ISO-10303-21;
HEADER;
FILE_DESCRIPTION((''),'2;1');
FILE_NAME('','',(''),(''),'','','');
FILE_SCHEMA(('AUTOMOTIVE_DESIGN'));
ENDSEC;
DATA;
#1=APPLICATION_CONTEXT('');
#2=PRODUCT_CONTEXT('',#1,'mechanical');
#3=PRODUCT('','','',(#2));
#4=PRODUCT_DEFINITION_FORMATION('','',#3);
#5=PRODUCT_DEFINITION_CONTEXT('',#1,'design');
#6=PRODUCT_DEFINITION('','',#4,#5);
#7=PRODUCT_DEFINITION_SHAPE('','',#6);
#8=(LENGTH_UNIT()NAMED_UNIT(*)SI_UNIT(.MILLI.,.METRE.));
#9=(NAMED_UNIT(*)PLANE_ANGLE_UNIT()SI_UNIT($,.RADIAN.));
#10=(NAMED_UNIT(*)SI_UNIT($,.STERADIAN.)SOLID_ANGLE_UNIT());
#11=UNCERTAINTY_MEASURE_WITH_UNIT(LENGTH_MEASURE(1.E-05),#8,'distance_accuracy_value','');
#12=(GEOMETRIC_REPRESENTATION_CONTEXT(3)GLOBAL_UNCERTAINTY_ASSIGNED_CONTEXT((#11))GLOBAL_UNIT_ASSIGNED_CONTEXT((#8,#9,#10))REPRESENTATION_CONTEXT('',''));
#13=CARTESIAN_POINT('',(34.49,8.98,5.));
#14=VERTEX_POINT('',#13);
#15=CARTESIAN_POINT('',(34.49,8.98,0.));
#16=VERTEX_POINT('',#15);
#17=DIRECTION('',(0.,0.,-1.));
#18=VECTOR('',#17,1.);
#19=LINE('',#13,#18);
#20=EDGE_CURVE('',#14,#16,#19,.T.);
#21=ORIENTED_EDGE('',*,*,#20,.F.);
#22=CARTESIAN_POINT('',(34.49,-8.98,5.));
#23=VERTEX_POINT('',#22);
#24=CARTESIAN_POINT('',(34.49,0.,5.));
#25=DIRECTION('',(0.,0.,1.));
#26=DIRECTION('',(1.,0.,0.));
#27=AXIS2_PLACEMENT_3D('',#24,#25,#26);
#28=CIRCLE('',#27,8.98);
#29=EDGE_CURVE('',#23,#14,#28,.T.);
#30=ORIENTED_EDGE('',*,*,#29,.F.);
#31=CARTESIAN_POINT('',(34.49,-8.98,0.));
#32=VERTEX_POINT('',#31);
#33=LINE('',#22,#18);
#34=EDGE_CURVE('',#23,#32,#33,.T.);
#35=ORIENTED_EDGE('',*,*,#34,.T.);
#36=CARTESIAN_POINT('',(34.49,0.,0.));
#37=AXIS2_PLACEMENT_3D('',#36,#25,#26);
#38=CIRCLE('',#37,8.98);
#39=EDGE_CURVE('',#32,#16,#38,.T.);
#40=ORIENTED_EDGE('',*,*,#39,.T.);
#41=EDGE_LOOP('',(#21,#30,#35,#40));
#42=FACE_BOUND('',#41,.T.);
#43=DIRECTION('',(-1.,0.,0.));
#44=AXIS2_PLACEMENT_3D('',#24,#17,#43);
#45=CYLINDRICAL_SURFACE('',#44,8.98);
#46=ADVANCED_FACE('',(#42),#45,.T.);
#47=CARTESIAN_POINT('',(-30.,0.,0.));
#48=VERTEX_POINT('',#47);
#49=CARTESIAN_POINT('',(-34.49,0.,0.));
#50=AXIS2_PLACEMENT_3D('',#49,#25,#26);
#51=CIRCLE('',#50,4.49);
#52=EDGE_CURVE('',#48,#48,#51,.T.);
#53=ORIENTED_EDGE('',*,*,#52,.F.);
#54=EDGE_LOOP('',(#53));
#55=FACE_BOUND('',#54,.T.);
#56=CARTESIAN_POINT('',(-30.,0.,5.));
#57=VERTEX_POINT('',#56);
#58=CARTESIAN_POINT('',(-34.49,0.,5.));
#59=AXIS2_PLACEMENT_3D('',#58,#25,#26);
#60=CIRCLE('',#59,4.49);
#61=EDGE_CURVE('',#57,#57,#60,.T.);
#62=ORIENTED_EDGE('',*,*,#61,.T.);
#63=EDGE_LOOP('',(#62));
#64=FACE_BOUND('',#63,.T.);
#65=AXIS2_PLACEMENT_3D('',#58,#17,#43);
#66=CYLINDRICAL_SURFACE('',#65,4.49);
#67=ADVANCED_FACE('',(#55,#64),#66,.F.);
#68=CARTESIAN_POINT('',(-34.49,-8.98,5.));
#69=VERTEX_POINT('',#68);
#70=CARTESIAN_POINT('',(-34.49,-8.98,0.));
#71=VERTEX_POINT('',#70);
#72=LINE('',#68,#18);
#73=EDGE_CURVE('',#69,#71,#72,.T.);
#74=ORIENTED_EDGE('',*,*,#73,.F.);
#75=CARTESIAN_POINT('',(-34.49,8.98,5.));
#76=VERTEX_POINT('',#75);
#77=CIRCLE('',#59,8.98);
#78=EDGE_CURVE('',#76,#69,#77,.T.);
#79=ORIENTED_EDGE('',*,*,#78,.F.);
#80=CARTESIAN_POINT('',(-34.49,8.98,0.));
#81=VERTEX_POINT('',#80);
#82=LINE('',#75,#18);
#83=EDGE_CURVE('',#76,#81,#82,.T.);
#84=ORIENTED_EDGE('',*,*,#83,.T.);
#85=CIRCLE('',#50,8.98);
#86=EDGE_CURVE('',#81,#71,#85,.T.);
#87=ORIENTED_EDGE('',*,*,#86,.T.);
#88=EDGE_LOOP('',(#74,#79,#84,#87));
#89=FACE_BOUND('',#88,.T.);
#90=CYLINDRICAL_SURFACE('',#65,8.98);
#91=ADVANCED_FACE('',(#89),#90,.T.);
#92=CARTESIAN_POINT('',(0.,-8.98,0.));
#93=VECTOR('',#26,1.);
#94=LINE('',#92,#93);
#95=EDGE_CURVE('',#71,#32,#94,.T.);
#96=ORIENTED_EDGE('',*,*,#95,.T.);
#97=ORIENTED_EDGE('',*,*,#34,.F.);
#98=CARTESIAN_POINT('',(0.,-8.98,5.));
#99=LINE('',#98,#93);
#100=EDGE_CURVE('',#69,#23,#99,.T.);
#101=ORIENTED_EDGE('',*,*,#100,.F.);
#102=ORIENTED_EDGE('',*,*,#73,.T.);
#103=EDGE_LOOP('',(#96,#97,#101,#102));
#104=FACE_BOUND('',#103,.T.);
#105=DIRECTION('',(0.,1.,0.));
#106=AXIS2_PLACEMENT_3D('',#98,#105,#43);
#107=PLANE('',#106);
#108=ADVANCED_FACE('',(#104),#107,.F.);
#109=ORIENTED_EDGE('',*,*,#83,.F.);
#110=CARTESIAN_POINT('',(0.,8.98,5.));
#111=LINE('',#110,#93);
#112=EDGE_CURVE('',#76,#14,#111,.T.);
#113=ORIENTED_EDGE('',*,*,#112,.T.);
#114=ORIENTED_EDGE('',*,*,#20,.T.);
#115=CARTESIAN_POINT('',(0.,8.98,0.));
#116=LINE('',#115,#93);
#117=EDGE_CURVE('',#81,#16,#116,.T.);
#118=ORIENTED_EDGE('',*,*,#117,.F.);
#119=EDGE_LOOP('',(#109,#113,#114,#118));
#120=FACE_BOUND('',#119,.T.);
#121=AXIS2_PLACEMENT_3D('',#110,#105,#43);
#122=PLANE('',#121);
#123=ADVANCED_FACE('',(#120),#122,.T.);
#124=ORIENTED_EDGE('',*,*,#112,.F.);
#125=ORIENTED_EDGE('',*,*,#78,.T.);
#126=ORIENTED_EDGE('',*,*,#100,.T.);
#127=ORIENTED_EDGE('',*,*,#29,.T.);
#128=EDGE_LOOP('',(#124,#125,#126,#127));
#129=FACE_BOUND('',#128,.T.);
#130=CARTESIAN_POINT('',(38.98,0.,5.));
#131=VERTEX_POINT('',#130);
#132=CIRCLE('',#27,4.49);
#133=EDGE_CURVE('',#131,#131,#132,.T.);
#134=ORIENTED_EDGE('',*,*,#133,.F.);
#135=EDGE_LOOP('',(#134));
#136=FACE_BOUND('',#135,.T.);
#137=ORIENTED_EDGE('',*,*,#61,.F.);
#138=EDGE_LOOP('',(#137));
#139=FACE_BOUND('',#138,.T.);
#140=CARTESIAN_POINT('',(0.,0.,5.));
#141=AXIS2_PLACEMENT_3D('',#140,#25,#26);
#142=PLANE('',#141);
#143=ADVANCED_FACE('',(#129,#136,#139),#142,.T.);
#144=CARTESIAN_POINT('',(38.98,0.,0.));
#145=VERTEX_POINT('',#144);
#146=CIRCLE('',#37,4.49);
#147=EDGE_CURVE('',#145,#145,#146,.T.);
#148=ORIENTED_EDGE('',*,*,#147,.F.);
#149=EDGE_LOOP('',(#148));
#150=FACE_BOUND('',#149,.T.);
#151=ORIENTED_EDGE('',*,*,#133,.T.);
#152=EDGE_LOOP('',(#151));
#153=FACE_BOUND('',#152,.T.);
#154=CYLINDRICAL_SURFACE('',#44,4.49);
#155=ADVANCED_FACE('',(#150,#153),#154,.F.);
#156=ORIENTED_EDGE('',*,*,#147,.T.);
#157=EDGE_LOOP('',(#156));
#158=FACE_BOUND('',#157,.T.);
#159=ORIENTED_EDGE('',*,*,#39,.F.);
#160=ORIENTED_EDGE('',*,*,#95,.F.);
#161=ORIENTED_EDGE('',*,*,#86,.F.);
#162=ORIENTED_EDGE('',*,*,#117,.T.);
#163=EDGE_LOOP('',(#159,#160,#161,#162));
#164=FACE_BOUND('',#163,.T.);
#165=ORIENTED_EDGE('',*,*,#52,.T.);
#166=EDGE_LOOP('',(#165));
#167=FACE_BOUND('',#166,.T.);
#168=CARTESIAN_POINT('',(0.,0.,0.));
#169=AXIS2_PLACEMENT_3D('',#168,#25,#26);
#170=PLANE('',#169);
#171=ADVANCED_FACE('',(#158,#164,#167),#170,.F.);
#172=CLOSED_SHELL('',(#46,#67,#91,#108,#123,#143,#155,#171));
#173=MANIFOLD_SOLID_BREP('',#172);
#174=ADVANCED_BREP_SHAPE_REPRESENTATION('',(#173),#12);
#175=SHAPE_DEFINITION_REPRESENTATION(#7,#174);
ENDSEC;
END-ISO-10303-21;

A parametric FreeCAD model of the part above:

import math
import FreeCAD as App
import Part
import Sketcher
from FreeCAD import Vector
Q = App.Units.Quantity

doc = App.newDocument("Part")
params = doc.addObject("Spreadsheet::Sheet", "Params")
for row, (alias, value) in enumerate([
    ("sketch1_diameter", "8.98 mm"),
    ("sketch1_radius", "8.98 mm"),
    ("sketch1_width", "68.98 mm"),
    ("pad1_length", "5 mm"),
], start=1):
    params.set(f"A{row}", alias)
    params.set(f"B{row}", "=" + value)
    params.setAlias(f"B{row}", alias)

body = doc.addObject("PartDesign::Body", "Body")

# Sketch on XY plane
sketch1 = doc.addObject("Sketcher::SketchObject", "Sketch")
body.addObject(sketch1)
sketch1.AttachmentSupport = (doc.XY_Plane, [""])
sketch1.MapMode = "FlatFace"
sketch1.addGeometry(Part.ArcOfCircle(Part.Circle(Vector(-34.5, 0, 0), Vector(0, 0, 1), 9), math.radians(90), math.radians(270)), False)
sketch1.addGeometry(Part.LineSegment(Vector(-34.5, -9, 0), Vector(34.5, -9, 0)), False)
sketch1.addGeometry(Part.ArcOfCircle(Part.Circle(Vector(34.5, 0, 0), Vector(0, 0, 1), 9), math.radians(-90), math.radians(90)), False)
sketch1.addGeometry(Part.LineSegment(Vector(34.5, 9, 0), Vector(-34.5, 9, 0)), False)
sketch1.addGeometry(Part.Circle(Vector(-34.5, 0, 0), Vector(0, 0, 1), 4.5), False)
sketch1.addGeometry(Part.Circle(Vector(34.5, 0, 0), Vector(0, 0, 1), 4.5), False)
sketch1.addConstraint(Sketcher.Constraint("Tangent", 0, 2, 1, 1))
sketch1.addConstraint(Sketcher.Constraint("Tangent", 1, 2, 2, 1))
sketch1.addConstraint(Sketcher.Constraint("Tangent", 2, 2, 3, 1))
sketch1.addConstraint(Sketcher.Constraint("Tangent", 3, 2, 0, 1))
sketch1.addConstraint(Sketcher.Constraint("Horizontal", 1))
sketch1.addConstraint(Sketcher.Constraint("Horizontal", 3))
sketch1.addConstraint(Sketcher.Constraint("Coincident", 4, 3, 0, 3))
sketch1.addConstraint(Sketcher.Constraint("Coincident", 5, 3, 2, 3))
sketch1.addConstraint(Sketcher.Constraint("Equal", 4, 5))
sketch1.addConstraint(Sketcher.Constraint("Symmetric", 0, 3, 2, 3, -1, 1))
sketch1.addConstraint(Sketcher.Constraint("Diameter", 4, Q("8.98 mm")))
sketch1.addConstraint(Sketcher.Constraint("Radius", 0, Q("8.98 mm")))
sketch1.addConstraint(Sketcher.Constraint("DistanceX", 1, 1, 1, 2, Q("68.98 mm")))
sketch1.setExpression("Constraints[10]", "Params.sketch1_diameter")
sketch1.setExpression("Constraints[11]", "Params.sketch1_radius")
sketch1.setExpression("Constraints[12]", "Params.sketch1_width")
pad1 = doc.addObject("PartDesign::Pad", "Pad")
body.addObject(pad1)
pad1.Profile = sketch1
pad1.setExpression("Length", "Params.pad1_length")

doc.recompute()
